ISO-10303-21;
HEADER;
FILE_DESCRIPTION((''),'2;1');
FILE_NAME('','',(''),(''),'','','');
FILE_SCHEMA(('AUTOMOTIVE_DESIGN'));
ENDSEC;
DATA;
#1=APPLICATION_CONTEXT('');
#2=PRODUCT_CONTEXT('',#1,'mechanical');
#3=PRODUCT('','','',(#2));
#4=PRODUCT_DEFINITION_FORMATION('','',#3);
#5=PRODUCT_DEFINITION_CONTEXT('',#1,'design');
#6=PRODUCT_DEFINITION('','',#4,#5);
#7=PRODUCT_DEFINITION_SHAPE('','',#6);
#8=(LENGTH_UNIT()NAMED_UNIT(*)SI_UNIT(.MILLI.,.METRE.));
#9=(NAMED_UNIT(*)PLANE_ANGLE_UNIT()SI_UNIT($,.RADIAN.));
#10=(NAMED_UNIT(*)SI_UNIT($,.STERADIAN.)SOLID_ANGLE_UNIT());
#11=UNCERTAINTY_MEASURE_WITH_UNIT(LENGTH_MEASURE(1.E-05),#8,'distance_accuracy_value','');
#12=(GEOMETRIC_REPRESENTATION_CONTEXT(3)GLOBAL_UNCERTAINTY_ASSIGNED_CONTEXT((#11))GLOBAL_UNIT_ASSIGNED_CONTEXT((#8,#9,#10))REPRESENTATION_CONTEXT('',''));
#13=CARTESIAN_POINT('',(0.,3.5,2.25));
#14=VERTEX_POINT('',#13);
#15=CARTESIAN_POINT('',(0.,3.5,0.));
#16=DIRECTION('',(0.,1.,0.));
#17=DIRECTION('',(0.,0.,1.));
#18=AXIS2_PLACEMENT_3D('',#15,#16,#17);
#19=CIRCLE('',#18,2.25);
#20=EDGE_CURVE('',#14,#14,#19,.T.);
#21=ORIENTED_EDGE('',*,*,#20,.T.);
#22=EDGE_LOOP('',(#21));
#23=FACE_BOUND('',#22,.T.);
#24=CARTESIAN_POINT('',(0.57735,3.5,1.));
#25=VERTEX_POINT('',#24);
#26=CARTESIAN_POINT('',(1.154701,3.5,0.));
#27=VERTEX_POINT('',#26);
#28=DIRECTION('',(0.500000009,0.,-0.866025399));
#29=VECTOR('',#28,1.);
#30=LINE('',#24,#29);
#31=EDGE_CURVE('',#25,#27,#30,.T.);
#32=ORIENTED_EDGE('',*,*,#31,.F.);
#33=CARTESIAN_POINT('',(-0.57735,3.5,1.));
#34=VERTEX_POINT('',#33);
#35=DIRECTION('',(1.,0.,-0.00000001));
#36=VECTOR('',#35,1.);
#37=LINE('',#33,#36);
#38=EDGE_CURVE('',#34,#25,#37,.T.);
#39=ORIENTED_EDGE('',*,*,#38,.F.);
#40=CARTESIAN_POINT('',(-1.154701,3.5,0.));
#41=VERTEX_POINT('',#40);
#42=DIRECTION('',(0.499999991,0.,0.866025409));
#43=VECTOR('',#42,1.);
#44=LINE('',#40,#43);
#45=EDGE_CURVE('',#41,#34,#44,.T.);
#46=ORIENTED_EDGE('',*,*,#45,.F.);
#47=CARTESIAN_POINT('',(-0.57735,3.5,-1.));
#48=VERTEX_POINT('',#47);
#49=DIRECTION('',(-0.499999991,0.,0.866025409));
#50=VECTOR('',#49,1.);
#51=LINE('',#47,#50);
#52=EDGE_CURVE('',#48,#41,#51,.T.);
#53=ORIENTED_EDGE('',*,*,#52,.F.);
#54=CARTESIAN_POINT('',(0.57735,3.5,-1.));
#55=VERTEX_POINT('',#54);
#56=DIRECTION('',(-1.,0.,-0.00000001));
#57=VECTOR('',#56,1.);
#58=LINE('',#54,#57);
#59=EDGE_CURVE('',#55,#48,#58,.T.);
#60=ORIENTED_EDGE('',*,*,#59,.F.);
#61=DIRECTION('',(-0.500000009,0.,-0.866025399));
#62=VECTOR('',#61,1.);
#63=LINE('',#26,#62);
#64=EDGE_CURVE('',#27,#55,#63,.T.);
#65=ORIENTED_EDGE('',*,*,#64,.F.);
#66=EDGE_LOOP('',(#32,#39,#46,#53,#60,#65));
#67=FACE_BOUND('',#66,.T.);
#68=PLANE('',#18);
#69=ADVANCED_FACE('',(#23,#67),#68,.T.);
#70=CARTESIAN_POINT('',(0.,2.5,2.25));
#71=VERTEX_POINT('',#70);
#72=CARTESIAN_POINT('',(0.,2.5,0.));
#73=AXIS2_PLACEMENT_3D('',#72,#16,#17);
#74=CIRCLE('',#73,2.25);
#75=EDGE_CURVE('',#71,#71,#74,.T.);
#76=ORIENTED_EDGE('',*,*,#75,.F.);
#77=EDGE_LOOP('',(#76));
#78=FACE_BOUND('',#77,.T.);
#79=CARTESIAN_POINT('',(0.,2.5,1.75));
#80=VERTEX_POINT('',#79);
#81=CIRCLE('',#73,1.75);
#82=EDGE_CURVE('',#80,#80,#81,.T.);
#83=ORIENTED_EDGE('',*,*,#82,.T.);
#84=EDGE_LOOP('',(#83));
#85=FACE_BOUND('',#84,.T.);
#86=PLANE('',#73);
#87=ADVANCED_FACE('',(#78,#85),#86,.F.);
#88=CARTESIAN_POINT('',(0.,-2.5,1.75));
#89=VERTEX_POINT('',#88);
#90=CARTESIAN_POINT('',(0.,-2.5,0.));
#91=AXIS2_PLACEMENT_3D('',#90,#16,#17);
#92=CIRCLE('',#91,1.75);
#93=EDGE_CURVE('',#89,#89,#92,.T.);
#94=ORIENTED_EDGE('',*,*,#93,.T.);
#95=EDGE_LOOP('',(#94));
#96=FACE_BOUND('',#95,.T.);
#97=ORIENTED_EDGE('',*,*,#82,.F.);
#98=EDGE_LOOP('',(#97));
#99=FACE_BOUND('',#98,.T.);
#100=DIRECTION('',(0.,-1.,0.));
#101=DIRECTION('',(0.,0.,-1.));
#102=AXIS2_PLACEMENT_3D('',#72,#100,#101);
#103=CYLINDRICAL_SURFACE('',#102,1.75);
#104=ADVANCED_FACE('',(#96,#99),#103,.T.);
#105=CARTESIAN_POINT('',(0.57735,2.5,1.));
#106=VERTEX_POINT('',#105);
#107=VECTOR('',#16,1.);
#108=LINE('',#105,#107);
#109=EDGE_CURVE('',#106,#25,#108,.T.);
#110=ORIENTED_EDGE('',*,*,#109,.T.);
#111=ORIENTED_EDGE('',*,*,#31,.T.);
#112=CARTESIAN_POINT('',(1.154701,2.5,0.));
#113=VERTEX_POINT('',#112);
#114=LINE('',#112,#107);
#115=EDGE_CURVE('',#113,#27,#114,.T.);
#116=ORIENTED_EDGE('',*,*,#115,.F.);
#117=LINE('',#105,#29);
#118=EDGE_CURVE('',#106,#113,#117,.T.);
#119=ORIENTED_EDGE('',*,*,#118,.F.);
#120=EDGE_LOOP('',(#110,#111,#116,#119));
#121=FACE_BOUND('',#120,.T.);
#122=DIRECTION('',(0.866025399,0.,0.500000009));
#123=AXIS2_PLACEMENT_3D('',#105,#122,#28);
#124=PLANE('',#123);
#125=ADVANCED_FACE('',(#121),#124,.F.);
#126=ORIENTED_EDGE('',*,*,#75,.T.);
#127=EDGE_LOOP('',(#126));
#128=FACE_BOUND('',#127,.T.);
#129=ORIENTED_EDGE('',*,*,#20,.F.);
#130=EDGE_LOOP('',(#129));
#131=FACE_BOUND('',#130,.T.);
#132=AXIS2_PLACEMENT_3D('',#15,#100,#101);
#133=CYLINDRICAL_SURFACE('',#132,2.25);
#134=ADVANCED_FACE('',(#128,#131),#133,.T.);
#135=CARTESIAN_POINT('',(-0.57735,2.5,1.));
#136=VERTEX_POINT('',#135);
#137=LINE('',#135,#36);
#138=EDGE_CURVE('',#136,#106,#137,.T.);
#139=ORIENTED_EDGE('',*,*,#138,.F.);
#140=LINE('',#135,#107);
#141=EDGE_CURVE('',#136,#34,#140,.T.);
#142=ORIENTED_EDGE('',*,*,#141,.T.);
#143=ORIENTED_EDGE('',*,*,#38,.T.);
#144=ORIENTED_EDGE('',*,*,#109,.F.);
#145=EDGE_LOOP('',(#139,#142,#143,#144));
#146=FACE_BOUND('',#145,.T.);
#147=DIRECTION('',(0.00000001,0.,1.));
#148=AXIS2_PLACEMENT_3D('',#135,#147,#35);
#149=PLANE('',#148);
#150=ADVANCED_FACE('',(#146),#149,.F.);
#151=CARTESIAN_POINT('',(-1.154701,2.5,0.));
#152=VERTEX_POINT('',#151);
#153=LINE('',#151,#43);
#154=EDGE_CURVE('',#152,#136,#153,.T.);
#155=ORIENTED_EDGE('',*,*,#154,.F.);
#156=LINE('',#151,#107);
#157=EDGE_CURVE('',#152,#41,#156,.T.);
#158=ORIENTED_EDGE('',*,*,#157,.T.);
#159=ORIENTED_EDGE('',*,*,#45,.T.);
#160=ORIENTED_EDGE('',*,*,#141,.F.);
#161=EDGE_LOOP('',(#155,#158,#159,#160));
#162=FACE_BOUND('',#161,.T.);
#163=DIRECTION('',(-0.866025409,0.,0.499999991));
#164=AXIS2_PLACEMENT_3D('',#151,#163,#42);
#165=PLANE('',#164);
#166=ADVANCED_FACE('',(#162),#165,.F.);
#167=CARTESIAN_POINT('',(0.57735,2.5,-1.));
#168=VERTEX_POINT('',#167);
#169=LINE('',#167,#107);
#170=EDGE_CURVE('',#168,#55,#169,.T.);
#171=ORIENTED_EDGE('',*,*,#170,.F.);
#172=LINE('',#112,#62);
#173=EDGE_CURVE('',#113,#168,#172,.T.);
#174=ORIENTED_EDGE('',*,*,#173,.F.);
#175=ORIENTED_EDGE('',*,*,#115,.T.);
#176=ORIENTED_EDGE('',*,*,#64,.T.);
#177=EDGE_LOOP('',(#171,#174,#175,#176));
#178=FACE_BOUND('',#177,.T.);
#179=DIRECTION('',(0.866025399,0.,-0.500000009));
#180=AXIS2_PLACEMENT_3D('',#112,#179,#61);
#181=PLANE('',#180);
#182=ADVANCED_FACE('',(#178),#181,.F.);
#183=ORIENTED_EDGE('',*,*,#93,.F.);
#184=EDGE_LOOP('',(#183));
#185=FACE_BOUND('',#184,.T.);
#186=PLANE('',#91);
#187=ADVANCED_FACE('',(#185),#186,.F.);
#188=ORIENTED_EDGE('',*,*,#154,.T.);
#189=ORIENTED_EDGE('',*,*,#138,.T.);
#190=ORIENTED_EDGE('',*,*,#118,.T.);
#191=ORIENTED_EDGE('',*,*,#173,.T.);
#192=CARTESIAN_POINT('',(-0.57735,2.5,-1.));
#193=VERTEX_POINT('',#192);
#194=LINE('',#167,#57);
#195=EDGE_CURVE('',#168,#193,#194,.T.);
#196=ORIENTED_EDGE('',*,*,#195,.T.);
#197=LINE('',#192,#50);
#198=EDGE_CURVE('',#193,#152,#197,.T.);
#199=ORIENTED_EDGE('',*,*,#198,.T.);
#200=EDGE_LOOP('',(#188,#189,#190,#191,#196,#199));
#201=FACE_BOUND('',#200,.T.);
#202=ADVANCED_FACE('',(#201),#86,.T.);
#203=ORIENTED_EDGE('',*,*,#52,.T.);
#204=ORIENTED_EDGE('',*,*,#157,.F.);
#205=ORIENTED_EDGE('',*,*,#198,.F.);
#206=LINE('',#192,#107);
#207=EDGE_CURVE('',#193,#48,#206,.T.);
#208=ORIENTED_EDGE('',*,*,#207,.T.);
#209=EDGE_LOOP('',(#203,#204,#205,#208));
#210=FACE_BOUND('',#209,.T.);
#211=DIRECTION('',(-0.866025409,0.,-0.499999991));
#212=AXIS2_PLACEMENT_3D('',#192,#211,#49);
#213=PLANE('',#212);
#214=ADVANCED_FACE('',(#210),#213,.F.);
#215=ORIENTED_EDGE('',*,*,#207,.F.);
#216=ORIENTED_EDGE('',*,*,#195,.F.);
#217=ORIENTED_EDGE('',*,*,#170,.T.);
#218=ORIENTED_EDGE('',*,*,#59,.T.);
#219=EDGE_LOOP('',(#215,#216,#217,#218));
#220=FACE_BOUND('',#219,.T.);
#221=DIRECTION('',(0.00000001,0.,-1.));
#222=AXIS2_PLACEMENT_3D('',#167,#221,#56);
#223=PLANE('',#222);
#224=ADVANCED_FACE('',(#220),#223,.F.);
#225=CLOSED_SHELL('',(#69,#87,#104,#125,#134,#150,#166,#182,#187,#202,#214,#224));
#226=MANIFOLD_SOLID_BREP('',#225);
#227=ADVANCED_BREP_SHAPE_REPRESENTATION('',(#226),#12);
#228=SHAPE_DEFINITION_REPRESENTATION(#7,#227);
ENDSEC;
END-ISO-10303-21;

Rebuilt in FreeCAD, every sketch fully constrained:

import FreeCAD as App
import Part
import Sketcher
from FreeCAD import Vector
Q = App.Units.Quantity

doc = App.newDocument("Part")
params = doc.addObject("Spreadsheet::Sheet", "Params")
for row, (alias, value) in enumerate([
    ("sketch1_diameter", "3.5 mm"),
    ("pad1_length", "5 mm"),
    ("sketch2_diameter", "4.5 mm"),
    ("pad2_length", "1 mm"),
    ("pocket1_length", "1 mm"),
], start=1):
    params.set(f"A{row}", alias)
    params.set(f"B{row}", "=" + value)
    params.setAlias(f"B{row}", alias)

body = doc.addObject("PartDesign::Body", "Body")

# Sketch on XZ plane
sketch1 = body.newObject("Sketcher::SketchObject", "Sketch")
sketch1.AttachmentSupport = (doc.getObject("XZ_Plane"), [""])
sketch1.MapMode = "FlatFace"
sketch1.addGeometry(Part.Circle(Vector(0, 0, 0), Vector(0, 0, 1), 1.75), False)
sketch1.addConstraint(Sketcher.Constraint("Coincident", 0, 3, -1, 1))
sketch1.addConstraint(Sketcher.Constraint("Diameter", 0, 3.5))
sketch1.setExpression("Constraints[1]", "Params.sketch1_diameter")
pad1 = body.newObject("PartDesign::Pad", "Pad")
pad1.Profile = sketch1
pad1.setExpression("Length", "Params.pad1_length")
pad1.Midplane = True

# Sketch on XZ plane
sketch2 = body.newObject("Sketcher::SketchObject", "Sketch001")
sketch2.AttachmentSupport = (doc.getObject("XZ_Plane"), [""])
sketch2.MapMode = "FlatFace"
sketch2.AttachmentOffset = App.Placement(Vector(0, 0, -2.5), App.Rotation())
sketch2.addGeometry(Part.Circle(Vector(0, 0, 0), Vector(0, 0, 1), 2.25), False)
sketch2.addConstraint(Sketcher.Constraint("Coincident", 0, 3, -1, 1))
sketch2.addConstraint(Sketcher.Constraint("Diameter", 0, 4.5))
sketch2.setExpression("Constraints[1]", "Params.sketch2_diameter")
pad2 = body.newObject("PartDesign::Pad", "Pad001")
pad2.Profile = sketch2
pad2.setExpression("Length", "Params.pad2_length")
pad2.Reversed = True

# Sketch on XZ plane
sketch3 = body.newObject("Sketcher::SketchObject", "Sketch002")
sketch3.AttachmentSupport = (doc.getObject("XZ_Plane"), [""])
sketch3.MapMode = "FlatFace"
sketch3.AttachmentOffset = App.Placement(Vector(0, 0, -3.5), App.Rotation())
sketch3.addGeometry(Part.LineSegment(Vector(1.154701, 0, 0), Vector(0.57735, -1, 0)), False)
sketch3.addGeometry(Part.LineSegment(Vector(0.57735, -1, 0), Vector(-0.57735, -1, 0)), False)
sketch3.addGeometry(Part.LineSegment(Vector(-0.57735, -1, 0), Vector(-1.154701, 0, 0)), False)
sketch3.addGeometry(Part.LineSegment(Vector(-1.154701, 0, 0), Vector(-0.57735, 1, 0)), False)
sketch3.addGeometry(Part.LineSegment(Vector(-0.57735, 1, 0), Vector(0.57735, 1, 0)), False)
sketch3.addGeometry(Part.LineSegment(Vector(0.57735, 1, 0), Vector(1.154701, 0, 0)), False)
sketch3.addConstraint(Sketcher.Constraint("Coincident", 0, 2, 1, 1))
sketch3.addConstraint(Sketcher.Constraint("Coincident", 1, 2, 2, 1))
sketch3.addConstraint(Sketcher.Constraint("Coincident", 2, 2, 3, 1))
sketch3.addConstraint(Sketcher.Constraint("Coincident", 3, 2, 4, 1))
sketch3.addConstraint(Sketcher.Constraint("Coincident", 4, 2, 5, 1))
sketch3.addConstraint(Sketcher.Constraint("Coincident", 5, 2, 0, 1))
sketch3.addConstraint(Sketcher.Constraint("Horizontal", 1))
sketch3.addConstraint(Sketcher.Constraint("Horizontal", 4))
sketch3.addConstraint(Sketcher.Constraint("Symmetric", 0, 2, 3, 2, -1, 1))
sketch3.addConstraint(Sketcher.Constraint("Symmetric", 2, 2, 5, 2, -1, 1))
sketch3.addConstraint(Sketcher.Constraint("PointOnObject", 2, 2, -1))
sketch3.addConstraint(Sketcher.Constraint("Parallel", 2, 5))
sketch3.addConstraint(Sketcher.Constraint("Vertical", 1, 2, 3, 2))
sketch3.addConstraint(Sketcher.Constraint("Angle", 0, Q("-120.000001 deg")))
sketch3.addConstraint(Sketcher.Constraint("DistanceY", 0, 2, -1, 1, 1.0))
sketch3.addConstraint(Sketcher.Constraint("DistanceX", 1, 2, 1, 1, 1.154701))
pocket1 = body.newObject("PartDesign::Pocket", "Pocket")
pocket1.Profile = sketch3
pocket1.setExpression("Length", "Params.pocket1_length")
pocket1.Reversed = True

doc.recompute()
